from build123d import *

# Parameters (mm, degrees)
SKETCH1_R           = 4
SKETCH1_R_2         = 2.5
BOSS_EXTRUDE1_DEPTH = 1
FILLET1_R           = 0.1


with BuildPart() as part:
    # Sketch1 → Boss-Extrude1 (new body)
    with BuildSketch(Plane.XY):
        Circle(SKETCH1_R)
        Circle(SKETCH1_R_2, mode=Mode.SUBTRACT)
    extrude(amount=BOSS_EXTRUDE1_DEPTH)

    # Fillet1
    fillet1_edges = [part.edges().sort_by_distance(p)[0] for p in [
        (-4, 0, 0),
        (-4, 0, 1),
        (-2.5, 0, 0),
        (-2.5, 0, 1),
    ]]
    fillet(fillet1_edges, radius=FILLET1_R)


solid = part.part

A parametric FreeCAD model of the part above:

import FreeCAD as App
import Part
import Sketcher
from FreeCAD import Vector


def edges_at(feature, points):
    """Names of the edges that pass closest to the given points."""
    edges = feature.Shape.Edges
    near = lambda p: min(range(len(edges)), key=lambda i: edges[i].distToShape(Part.Vertex(*p))[0])
    return sorted({f"Edge{near(p) + 1}" for p in points})

doc = App.newDocument("Part")
body = doc.addObject("PartDesign::Body", "Body")

sketch1 = doc.addObject("Sketcher::SketchObject", "Sketch")
body.addObject(sketch1)
sketch1.AttachmentSupport = (doc.XY_Plane, [""])
sketch1.MapMode = "FlatFace"
sketch1.addGeometry(Part.Circle(Vector(0, 0, 0), Vector(0, 0, 1), 4), False)
sketch1.addGeometry(Part.Circle(Vector(0, 0, 0), Vector(0, 0, 1), 2.5), False)
sketch1.addConstraint(Sketcher.Constraint("Coincident", 0, 3, -1, 1))
sketch1.addConstraint(Sketcher.Constraint("Coincident", 1, 3, -1, 1))
sketch1.addConstraint(Sketcher.Constraint("Diameter", 0, 8.0))
sketch1.addConstraint(Sketcher.Constraint("Diameter", 1, 5.0))
pad1 = doc.addObject("PartDesign::Pad", "Pad")
body.addObject(pad1)
pad1.Profile = sketch1
pad1.Length = 1
doc.recompute()

fillet = doc.addObject("PartDesign::Fillet", "Fillet")
body.addObject(fillet)
fillet.Base = (pad1, edges_at(pad1, [
    (-4, 0, 0),
    (-4, 0, 1),
    (-2.5, 0, 0),
    (-2.5, 0, 1),
]))
fillet.Radius = 0.1

doc.recompute()
